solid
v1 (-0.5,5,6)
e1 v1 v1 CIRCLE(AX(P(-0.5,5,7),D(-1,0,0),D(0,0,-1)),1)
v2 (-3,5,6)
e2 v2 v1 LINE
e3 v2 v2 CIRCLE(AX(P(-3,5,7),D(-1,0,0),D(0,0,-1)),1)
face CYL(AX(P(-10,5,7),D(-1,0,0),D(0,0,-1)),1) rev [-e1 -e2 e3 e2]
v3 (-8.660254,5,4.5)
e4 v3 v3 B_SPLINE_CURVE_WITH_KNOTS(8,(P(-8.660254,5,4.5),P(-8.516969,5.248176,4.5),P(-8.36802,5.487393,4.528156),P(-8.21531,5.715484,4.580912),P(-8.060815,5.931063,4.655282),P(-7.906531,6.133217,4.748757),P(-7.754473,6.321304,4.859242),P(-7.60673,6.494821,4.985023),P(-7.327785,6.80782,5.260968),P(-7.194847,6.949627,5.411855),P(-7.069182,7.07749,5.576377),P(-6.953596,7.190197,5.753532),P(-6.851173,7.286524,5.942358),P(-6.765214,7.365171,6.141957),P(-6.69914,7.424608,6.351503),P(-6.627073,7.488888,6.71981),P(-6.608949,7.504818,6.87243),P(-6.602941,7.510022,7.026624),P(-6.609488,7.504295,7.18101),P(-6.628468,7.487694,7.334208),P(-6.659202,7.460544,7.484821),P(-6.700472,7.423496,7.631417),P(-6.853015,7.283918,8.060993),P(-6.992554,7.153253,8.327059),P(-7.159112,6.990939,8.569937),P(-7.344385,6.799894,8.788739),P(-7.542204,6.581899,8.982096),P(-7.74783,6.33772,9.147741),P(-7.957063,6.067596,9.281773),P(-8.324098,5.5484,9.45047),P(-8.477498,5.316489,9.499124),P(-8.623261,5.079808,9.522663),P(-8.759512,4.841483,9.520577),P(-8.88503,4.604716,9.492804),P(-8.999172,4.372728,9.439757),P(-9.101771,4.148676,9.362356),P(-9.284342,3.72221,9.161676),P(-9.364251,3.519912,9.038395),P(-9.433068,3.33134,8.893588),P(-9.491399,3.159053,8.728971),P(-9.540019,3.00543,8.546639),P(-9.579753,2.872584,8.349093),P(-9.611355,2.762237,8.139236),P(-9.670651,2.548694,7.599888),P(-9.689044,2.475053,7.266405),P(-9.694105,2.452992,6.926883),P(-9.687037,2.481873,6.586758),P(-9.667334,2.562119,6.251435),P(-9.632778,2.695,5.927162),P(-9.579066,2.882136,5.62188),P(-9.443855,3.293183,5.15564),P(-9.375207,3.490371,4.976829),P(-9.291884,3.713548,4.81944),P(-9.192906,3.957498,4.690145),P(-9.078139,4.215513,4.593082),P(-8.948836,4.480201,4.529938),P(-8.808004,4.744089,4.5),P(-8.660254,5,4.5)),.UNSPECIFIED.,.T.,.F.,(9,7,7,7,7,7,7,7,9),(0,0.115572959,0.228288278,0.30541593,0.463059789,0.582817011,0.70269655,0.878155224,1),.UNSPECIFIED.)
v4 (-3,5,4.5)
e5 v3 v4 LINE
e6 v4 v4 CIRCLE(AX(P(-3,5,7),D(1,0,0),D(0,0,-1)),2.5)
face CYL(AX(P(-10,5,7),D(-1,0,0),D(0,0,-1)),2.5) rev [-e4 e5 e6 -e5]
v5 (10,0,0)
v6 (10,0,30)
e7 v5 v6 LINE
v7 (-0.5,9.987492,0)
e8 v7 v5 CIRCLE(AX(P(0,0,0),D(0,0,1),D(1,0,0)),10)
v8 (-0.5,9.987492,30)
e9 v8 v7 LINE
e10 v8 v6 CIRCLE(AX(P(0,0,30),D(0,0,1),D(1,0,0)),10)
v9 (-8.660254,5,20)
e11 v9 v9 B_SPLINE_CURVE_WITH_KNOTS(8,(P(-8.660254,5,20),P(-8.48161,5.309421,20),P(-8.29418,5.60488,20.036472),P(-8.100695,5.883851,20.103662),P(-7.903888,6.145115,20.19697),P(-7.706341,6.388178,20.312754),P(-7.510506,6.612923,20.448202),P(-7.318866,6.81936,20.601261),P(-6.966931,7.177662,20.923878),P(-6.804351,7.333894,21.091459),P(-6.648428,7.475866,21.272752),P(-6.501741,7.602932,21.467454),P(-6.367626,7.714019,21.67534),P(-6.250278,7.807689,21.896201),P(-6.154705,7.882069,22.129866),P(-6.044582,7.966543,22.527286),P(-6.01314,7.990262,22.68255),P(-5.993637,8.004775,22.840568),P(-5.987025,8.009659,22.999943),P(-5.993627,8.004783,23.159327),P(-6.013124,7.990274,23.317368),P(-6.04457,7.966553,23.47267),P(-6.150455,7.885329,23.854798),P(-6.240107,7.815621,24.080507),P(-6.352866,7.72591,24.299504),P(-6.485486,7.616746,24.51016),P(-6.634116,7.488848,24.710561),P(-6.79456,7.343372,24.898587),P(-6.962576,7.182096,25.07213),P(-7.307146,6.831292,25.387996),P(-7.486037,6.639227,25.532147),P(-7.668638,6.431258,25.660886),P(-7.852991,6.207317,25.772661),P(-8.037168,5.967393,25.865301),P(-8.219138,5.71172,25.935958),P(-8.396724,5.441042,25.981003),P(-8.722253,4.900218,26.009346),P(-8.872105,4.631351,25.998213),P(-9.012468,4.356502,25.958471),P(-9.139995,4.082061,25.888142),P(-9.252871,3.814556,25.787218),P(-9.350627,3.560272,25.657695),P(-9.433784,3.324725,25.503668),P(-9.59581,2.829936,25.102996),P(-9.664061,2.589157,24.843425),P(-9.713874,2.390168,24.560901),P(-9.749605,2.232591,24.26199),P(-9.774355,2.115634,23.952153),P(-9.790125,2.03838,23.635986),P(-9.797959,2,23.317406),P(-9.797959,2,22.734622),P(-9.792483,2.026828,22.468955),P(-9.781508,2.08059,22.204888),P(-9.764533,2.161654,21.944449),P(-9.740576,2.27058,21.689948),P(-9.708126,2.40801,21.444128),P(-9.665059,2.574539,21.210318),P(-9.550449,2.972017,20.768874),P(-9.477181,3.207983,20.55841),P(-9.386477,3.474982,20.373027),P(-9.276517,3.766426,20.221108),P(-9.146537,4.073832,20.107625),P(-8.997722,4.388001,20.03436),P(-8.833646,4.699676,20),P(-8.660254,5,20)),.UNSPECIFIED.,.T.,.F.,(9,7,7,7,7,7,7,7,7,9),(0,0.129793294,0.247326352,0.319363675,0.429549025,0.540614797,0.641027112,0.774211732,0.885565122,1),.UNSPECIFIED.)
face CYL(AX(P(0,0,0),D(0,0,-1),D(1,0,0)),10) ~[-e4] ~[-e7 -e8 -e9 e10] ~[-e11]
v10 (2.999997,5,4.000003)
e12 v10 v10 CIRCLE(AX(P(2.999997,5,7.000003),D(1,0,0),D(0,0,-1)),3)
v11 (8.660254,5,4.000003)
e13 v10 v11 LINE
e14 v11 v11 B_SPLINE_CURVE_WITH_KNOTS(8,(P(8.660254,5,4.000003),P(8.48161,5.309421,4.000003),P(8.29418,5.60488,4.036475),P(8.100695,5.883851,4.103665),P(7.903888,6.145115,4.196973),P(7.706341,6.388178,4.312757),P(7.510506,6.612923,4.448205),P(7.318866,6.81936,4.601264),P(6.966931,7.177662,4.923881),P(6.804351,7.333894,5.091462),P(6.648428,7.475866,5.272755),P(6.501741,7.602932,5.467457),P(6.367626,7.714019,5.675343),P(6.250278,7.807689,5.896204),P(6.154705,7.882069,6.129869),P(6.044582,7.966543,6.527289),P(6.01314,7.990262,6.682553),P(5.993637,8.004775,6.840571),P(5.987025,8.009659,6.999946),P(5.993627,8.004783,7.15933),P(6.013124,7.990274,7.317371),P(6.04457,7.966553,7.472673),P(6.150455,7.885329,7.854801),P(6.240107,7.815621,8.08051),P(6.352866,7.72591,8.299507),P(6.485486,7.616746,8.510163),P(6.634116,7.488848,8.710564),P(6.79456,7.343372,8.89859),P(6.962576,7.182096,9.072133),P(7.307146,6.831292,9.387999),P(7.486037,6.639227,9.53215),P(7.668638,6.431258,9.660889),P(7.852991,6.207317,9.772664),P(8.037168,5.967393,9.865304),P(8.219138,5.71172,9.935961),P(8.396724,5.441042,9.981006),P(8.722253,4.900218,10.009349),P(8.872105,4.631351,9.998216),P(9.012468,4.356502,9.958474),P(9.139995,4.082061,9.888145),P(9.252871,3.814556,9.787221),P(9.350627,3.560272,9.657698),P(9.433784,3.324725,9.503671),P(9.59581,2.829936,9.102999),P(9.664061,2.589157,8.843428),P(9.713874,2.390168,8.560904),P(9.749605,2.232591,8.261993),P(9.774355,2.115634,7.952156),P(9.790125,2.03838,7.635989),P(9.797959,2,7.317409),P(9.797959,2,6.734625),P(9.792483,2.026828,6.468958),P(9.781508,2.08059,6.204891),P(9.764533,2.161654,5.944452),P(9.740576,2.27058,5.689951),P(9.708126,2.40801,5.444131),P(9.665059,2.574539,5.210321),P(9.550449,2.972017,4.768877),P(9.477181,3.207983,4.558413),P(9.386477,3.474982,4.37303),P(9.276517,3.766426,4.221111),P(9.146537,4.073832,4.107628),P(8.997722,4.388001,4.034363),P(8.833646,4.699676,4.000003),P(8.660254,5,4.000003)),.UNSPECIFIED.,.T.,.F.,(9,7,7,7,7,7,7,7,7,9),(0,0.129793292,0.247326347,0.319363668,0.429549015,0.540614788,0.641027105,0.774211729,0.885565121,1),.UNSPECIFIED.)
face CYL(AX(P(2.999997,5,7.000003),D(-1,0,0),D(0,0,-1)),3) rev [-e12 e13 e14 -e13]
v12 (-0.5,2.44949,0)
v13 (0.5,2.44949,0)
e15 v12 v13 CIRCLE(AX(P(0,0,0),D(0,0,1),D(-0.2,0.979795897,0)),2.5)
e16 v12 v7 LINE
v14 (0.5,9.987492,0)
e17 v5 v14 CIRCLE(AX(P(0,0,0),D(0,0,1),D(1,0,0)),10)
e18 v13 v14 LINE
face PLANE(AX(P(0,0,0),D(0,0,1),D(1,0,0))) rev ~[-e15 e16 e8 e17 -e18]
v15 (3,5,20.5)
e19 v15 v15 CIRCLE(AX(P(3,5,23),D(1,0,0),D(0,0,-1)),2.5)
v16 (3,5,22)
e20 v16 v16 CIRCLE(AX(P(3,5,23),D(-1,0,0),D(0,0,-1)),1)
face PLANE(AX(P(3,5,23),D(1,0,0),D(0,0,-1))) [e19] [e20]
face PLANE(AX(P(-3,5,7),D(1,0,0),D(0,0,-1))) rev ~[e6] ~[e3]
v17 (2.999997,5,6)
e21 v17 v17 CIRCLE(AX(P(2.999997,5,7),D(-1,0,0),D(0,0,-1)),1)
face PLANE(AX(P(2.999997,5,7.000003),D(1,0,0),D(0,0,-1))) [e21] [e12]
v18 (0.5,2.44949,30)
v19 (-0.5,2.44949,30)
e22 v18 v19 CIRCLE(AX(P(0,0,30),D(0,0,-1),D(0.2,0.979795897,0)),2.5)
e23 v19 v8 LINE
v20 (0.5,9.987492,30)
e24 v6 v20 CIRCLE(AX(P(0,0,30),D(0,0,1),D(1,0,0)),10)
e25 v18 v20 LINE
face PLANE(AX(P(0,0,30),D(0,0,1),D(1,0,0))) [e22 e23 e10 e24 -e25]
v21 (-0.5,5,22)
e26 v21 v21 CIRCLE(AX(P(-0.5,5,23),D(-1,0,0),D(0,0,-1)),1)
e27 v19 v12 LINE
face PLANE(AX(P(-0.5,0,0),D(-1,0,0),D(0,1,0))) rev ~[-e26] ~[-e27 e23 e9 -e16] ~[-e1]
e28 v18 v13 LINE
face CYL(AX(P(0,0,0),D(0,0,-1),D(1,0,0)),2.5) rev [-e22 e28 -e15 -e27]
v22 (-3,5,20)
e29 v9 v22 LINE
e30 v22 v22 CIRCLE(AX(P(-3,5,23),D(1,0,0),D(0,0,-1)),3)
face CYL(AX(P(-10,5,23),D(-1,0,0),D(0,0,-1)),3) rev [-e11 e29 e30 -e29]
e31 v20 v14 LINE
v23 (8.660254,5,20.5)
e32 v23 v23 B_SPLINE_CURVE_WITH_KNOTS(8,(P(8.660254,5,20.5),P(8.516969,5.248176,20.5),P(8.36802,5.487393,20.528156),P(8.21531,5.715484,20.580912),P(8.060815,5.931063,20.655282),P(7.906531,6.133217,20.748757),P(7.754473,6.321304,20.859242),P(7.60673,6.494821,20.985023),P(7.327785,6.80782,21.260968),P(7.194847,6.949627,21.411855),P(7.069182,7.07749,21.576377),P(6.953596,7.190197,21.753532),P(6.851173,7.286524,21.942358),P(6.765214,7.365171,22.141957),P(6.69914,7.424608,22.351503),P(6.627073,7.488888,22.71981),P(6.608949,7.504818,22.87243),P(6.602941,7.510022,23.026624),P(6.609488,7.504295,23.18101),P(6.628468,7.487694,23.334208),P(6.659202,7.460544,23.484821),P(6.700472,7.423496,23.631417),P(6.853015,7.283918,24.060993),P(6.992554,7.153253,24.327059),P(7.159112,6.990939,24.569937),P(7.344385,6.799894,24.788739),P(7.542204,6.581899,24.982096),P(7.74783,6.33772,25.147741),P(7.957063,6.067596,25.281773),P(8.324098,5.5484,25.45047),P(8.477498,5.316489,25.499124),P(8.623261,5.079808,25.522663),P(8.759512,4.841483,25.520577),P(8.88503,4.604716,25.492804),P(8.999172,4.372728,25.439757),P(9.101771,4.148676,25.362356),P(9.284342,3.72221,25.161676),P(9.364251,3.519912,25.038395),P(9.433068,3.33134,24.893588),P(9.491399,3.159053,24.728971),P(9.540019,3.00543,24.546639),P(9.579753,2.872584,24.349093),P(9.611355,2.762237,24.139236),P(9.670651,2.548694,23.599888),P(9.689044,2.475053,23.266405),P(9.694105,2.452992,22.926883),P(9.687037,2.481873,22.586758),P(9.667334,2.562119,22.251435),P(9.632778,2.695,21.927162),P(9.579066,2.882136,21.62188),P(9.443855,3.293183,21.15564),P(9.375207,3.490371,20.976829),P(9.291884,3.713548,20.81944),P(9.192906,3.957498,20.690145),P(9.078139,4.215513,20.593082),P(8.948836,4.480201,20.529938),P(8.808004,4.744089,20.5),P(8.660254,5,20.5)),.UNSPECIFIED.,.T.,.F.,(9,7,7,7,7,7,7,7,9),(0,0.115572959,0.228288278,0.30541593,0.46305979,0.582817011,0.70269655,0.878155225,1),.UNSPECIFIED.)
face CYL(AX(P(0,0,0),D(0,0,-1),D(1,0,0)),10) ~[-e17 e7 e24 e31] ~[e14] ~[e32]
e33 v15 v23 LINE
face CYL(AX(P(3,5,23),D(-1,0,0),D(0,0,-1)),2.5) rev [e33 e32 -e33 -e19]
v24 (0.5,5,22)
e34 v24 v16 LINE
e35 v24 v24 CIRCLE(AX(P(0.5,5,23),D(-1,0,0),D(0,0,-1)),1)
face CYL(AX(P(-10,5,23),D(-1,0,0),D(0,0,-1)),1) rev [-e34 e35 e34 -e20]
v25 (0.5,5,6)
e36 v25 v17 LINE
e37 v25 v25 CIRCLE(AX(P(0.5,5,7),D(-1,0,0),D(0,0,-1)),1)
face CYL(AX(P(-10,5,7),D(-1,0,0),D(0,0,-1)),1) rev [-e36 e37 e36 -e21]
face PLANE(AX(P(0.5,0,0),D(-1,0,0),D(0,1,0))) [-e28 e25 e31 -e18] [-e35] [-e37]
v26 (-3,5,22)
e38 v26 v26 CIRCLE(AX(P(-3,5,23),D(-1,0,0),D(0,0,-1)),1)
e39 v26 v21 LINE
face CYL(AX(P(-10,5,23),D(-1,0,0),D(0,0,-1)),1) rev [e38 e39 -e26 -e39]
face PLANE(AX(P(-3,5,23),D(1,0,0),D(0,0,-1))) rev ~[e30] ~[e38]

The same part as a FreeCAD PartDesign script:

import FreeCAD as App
import Part
import Sketcher

V = App.Vector

doc = App.newDocument("Part")
body = doc.addObject("PartDesign::Body", "Body")

# Sketch on XY plane
sketch1 = doc.addObject("Sketcher::SketchObject", "Sketch")
body.addObject(sketch1)
sketch1.AttachmentSupport = (doc.XY_Plane, [""])
sketch1.MapMode = "FlatFace"
sketch1.addGeometry([
    Part.LineSegment(V(-0.5, 11, 0), V(-0.5, 0, 0)),
    Part.LineSegment(V(-0.5, 0, 0), V(0.5, 0, 0)),
    Part.LineSegment(V(0.5, 0, 0), V(0.5, 11, 0)),
    Part.LineSegment(V(0.5, 11, 0), V(-0.5, 11, 0)),
], False)
sketch1.addConstraint([
    Sketcher.Constraint("Coincident", 0, 2, 1, 1),
    Sketcher.Constraint("Coincident", 1, 2, 2, 1),
    Sketcher.Constraint("Coincident", 2, 2, 3, 1),
    Sketcher.Constraint("Coincident", 3, 2, 0, 1),
    Sketcher.Constraint("Vertical", 0),
    Sketcher.Constraint("Horizontal", 1),
    Sketcher.Constraint("Vertical", 2),
    Sketcher.Constraint("Horizontal", 3),
    Sketcher.Constraint("Symmetric", 0, 2, 1, 2, -1, 1),
    Sketcher.Constraint("DistanceX", 1, 1, 1, 2, 1.0),
    Sketcher.Constraint("DistanceY", 0, 2, 0, 1, 11.0),
])
pad1 = doc.addObject("PartDesign::Pad", "Pad")
body.addObject(pad1)
pad1.Profile = sketch1
pad1.Length = 30
body2 = doc.addObject("PartDesign::Body", "Body001")

# Sketch on XY plane
sketch2 = doc.addObject("Sketcher::SketchObject", "Sketch001")
body2.addObject(sketch2)
sketch2.AttachmentSupport = (doc.getObject("XY_Plane001"), [""])
sketch2.MapMode = "FlatFace"
sketch2.addGeometry(Part.Circle(V(0, 0, 0), V(0, 0, 1), 1), False)
sketch2.addConstraint([
    Sketcher.Constraint("Coincident", 0, 3, -1, 1),
    Sketcher.Constraint("Diameter", 0, 2.0),
])
pad2 = doc.addObject("PartDesign::Pad", "Pad001")
body2.addObject(pad2)
pad2.Profile = sketch2
pad2.Length = 20
body3 = doc.addObject("PartDesign::Body", "Body002")
doc.recompute()

body2.Placement = App.Placement(V(0, 0, 0), App.Rotation(V(0, 1, 0), 90))
boolean = doc.addObject("PartDesign::Boolean", "Boolean")
body3.addObject(boolean)
boolean.Type = "Fuse"
boolean.addObjects([body2])
body4 = doc.addObject("PartDesign::Body", "Body003")
doc.recompute()

body3.Placement = App.Placement(V(-10, 5, 23), App.Rotation(V(0, 0, 1), 0))
boolean2 = doc.addObject("PartDesign::Boolean", "Boolean001")
body4.addObject(boolean2)
boolean2.Type = "Fuse"
boolean2.addObjects([body3])
body5 = doc.addObject("PartDesign::Body", "Body004")

# Sketch on XY plane
sketch3 = doc.addObject("Sketcher::SketchObject", "Sketch002")
body5.addObject(sketch3)
sketch3.AttachmentSupport = (doc.getObject("XY_Plane004"), [""])
sketch3.MapMode = "FlatFace"
sketch3.addGeometry(Part.Circle(V(0, 0, 0), V(0, 0, 1), 1), False)
sketch3.addConstraint([
    Sketcher.Constraint("Coincident", 0, 3, -1, 1),
    Sketcher.Constraint("Diameter", 0, 2.0),
])
pad3 = doc.addObject("PartDesign::Pad", "Pad002")
body5.addObject(pad3)
pad3.Profile = sketch3
pad3.Length = 20
body6 = doc.addObject("PartDesign::Body", "Body005")
doc.recompute()

body5.Placement = App.Placement(V(0, 0, 0), App.Rotation(V(0, 1, 0), 90))
boolean3 = doc.addObject("PartDesign::Boolean", "Boolean002")
body6.addObject(boolean3)
boolean3.Type = "Fuse"
boolean3.addObjects([body5])
body7 = doc.addObject("PartDesign::Body", "Body006")
doc.recompute()

body6.Placement = App.Placement(V(-10, 5, 7), App.Rotation(V(0, 0, 1), 0))
boolean4 = doc.addObject("PartDesign::Boolean", "Boolean003")
body7.addObject(boolean4)
boolean4.Type = "Fuse"
boolean4.addObjects([body6])
body8 = doc.addObject("PartDesign::Body", "Body007")

# Sketch on XY plane
sketch4 = doc.addObject("Sketcher::SketchObject", "Sketch003")
body8.addObject(sketch4)
sketch4.AttachmentSupport = (doc.getObject("XY_Plane007"), [""])
sketch4.MapMode = "FlatFace"
sketch4.addGeometry(Part.Circle(V(0, 0, 0), V(0, 0, 1), 2.5), False)
sketch4.addConstraint([
    Sketcher.Constraint("Coincident", 0, 3, -1, 1),
    Sketcher.Constraint("Diameter", 0, 5.0),
])
pad4 = doc.addObject("PartDesign::Pad", "Pad003")
body8.addObject(pad4)
pad4.Profile = sketch4
pad4.Length = 7
body9 = doc.addObject("PartDesign::Body", "Body008")
doc.recompute()

body8.Placement = App.Placement(V(0, 0, 0), App.Rotation(V(0, 1, 0), 90))
boolean5 = doc.addObject("PartDesign::Boolean", "Boolean004")
body9.addObject(boolean5)
boolean5.Type = "Fuse"
boolean5.addObjects([body8])
body10 = doc.addObject("PartDesign::Body", "Body009")
doc.recompute()

body9.Placement = App.Placement(V(-10, 5, 7), App.Rotation(V(0, 0, 1), 0))
boolean6 = doc.addObject("PartDesign::Boolean", "Boolean005")
body10.addObject(boolean6)
boolean6.Type = "Fuse"
boolean6.addObjects([body9])
body11 = doc.addObject("PartDesign::Body", "Body010")

# Sketch on XY plane
sketch5 = doc.addObject("Sketcher::SketchObject", "Sketch004")
body11.addObject(sketch5)
sketch5.AttachmentSupport = (doc.getObject("XY_Plane010"), [""])
sketch5.MapMode = "FlatFace"
sketch5.addGeometry(Part.Circle(V(0, 0, 0), V(0, 0, 1), 3), False)
sketch5.addConstraint([
    Sketcher.Constraint("Coincident", 0, 3, -1, 1),
    Sketcher.Constraint("Diameter", 0, 6.0),
])
pad5 = doc.addObject("PartDesign::Pad", "Pad004")
body11.addObject(pad5)
pad5.Profile = sketch5
pad5.Length = 7
body12 = doc.addObject("PartDesign::Body", "Body011")
doc.recompute()

body11.Placement = App.Placement(V(0, 0, 0), App.Rotation(V(0, 1, 0), 90))
boolean7 = doc.addObject("PartDesign::Boolean", "Boolean006")
body12.addObject(boolean7)
boolean7.Type = "Fuse"
boolean7.addObjects([body11])
body13 = doc.addObject("PartDesign::Body", "Body012")
doc.recompute()

body12.Placement = App.Placement(V(2.999997, 5, 7.000003), App.Rotation(V(0, 0, 1), 0))
boolean8 = doc.addObject("PartDesign::Boolean", "Boolean007")
body13.addObject(boolean8)
boolean8.Type = "Fuse"
boolean8.addObjects([body12])
body14 = doc.addObject("PartDesign::Body", "Body013")

# Sketch on XY plane
sketch6 = doc.addObject("Sketcher::SketchObject", "Sketch005")
body14.addObject(sketch6)
sketch6.AttachmentSupport = (doc.getObject("XY_Plane013"), [""])
sketch6.MapMode = "FlatFace"
sketch6.addGeometry(Part.Circle(V(0, 0, 0), V(0, 0, 1), 2.5), False)
sketch6.addConstraint([
    Sketcher.Constraint("Coincident", 0, 3, -1, 1),
    Sketcher.Constraint("Diameter", 0, 5.0),
])
pad6 = doc.addObject("PartDesign::Pad", "Pad005")
body14.addObject(pad6)
pad6.Profile = sketch6
pad6.Length = 7
body15 = doc.addObject("PartDesign::Body", "Body014")
doc.recompute()

body14.Placement = App.Placement(V(0, 0, 0), App.Rotation(V(0, 1, 0), 90))
boolean9 = doc.addObject("PartDesign::Boolean", "Boolean008")
body15.addObject(boolean9)
boolean9.Type = "Fuse"
boolean9.addObjects([body14])
body16 = doc.addObject("PartDesign::Body", "Body015")
doc.recompute()

body15.Placement = App.Placement(V(3, 5, 23), App.Rotation(V(0, 0, 1), 0))
boolean10 = doc.addObject("PartDesign::Boolean", "Boolean009")
body16.addObject(boolean10)
boolean10.Type = "Fuse"
boolean10.addObjects([body15])
body17 = doc.addObject("PartDesign::Body", "Body016")

# Sketch on XY plane
sketch7 = doc.addObject("Sketcher::SketchObject", "Sketch006")
body17.addObject(sketch7)
sketch7.AttachmentSupport = (doc.getObject("XY_Plane016"), [""])
sketch7.MapMode = "FlatFace"
sketch7.addGeometry(Part.Circle(V(0, 0, 0), V(0, 0, 1), 3), False)
sketch7.addConstraint([
    Sketcher.Constraint("Coincident", 0, 3, -1, 1),
    Sketcher.Constraint("Diameter", 0, 6.0),
])
pad7 = doc.addObject("PartDesign::Pad", "Pad006")
body17.addObject(pad7)
pad7.Profile = sketch7
pad7.Length = 7
body18 = doc.addObject("PartDesign::Body", "Body017")
doc.recompute()

body17.Placement = App.Placement(V(0, 0, 0), App.Rotation(V(0, 1, 0), 90))
boolean11 = doc.addObject("PartDesign::Boolean", "Boolean010")
body18.addObject(boolean11)
boolean11.Type = "Fuse"
boolean11.addObjects([body17])
body19 = doc.addObject("PartDesign::Body", "Body018")
doc.recompute()

body18.Placement = App.Placement(V(-10, 5, 23), App.Rotation(V(0, 0, 1), 0))
boolean12 = doc.addObject("PartDesign::Boolean", "Boolean011")
body19.addObject(boolean12)
boolean12.Type = "Fuse"
boolean12.addObjects([body18])
body20 = doc.addObject("PartDesign::Body", "Body019")

# Sketch on XY plane
sketch8 = doc.addObject("Sketcher::SketchObject", "Sketch007")
body20.addObject(sketch8)
sketch8.AttachmentSupport = (doc.getObject("XY_Plane019"), [""])
sketch8.MapMode = "FlatFace"
sketch8.addGeometry(Part.Circle(V(0, 0, 0), V(0, 0, 1), 2.5), False)
sketch8.addConstraint([
    Sketcher.Constraint("Coincident", 0, 3, -1, 1),
    Sketcher.Constraint("Diameter", 0, 5.0),
])
pad8 = doc.addObject("PartDesign::Pad", "Pad007")
body20.addObject(pad8)
pad8.Profile = sketch8
pad8.Length = 30
body21 = doc.addObject("PartDesign::Body", "Body020")

# Sketch on XY plane
sketch9 = doc.addObject("Sketcher::SketchObject", "Sketch008")
body21.addObject(sketch9)
sketch9.AttachmentSupport = (doc.getObject("XY_Plane020"), [""])
sketch9.MapMode = "FlatFace"
sketch9.addGeometry(Part.Circle(V(0, 0, 0), V(0, 0, 1), 10), False)
sketch9.addConstraint([
    Sketcher.Constraint("Coincident", 0, 3, -1, 1),
    Sketcher.Constraint("Diameter", 0, 20.0),
])
pad9 = doc.addObject("PartDesign::Pad", "Pad008")
body21.addObject(pad9)
pad9.Profile = sketch9
pad9.Length = 30
doc.recompute()

boolean13 = doc.addObject("PartDesign::Boolean", "Boolean012")
body21.addObject(boolean13)
boolean13.Type = "Cut"
boolean13.addObjects([body20])
doc.recompute()

boolean14 = doc.addObject("PartDesign::Boolean", "Boolean013")
body21.addObject(boolean14)
boolean14.Type = "Cut"
boolean14.addObjects([body19])
doc.recompute()

boolean15 = doc.addObject("PartDesign::Boolean", "Boolean014")
body21.addObject(boolean15)
boolean15.Type = "Cut"
boolean15.addObjects([body16])
doc.recompute()

boolean16 = doc.addObject("PartDesign::Boolean", "Boolean015")
body21.addObject(boolean16)
boolean16.Type = "Cut"
boolean16.addObjects([body13])
doc.recompute()

boolean17 = doc.addObject("PartDesign::Boolean", "Boolean016")
body21.addObject(boolean17)
boolean17.Type = "Cut"
boolean17.addObjects([body10])
doc.recompute()

boolean18 = doc.addObject("PartDesign::Boolean", "Boolean017")
body21.addObject(boolean18)
boolean18.Type = "Cut"
boolean18.addObjects([body7])
doc.recompute()

boolean19 = doc.addObject("PartDesign::Boolean", "Boolean018")
body21.addObject(boolean19)
boolean19.Type = "Cut"
boolean19.addObjects([body4])
doc.recompute()

boolean20 = doc.addObject("PartDesign::Boolean", "Boolean019")
body21.addObject(boolean20)
boolean20.Type = "Cut"
boolean20.addObjects([body])

doc.recompute()
